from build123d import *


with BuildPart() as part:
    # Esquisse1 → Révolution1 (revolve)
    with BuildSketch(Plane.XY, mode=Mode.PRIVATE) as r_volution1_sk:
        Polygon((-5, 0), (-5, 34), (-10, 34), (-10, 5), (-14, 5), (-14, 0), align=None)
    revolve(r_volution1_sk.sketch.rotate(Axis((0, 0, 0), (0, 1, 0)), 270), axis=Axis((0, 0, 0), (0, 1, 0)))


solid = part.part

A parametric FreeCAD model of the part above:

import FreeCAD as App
import Part
import Sketcher

doc = App.newDocument("Part")
body = doc.addObject("PartDesign::Body", "Body")

# Sketch on XY plane
sketch1 = body.newObject("Sketcher::SketchObject", "Sketch")
sketch1.AttachmentSupport = (doc.getObject("XY_Plane"), [""])
sketch1.MapMode = "FlatFace"
sketch1.addGeometry([
    Part.LineSegment(App.Vector(-5, 0, 0), App.Vector(-5, 34, 0)),  # 0
    Part.LineSegment(App.Vector(-5, 34, 0), App.Vector(-10, 34, 0)),  # 1
    Part.LineSegment(App.Vector(-10, 34, 0), App.Vector(-10, 5, 0)),  # 2
    Part.LineSegment(App.Vector(-10, 5, 0), App.Vector(-14, 5, 0)),  # 3
    Part.LineSegment(App.Vector(-14, 5, 0), App.Vector(-14, 0, 0)),  # 4
    Part.LineSegment(App.Vector(-14, 0, 0), App.Vector(-5, 0, 0)),  # 5
], False)
sketch1.addConstraint([
    Sketcher.Constraint("Coincident", 0, 2, 1, 1),
    Sketcher.Constraint("Coincident", 1, 2, 2, 1),
    Sketcher.Constraint("Coincident", 2, 2, 3, 1),
    Sketcher.Constraint("Coincident", 3, 2, 4, 1),
    Sketcher.Constraint("Coincident", 4, 2, 5, 1),
    Sketcher.Constraint("Coincident", 5, 2, 0, 1),
    Sketcher.Constraint("Vertical", 0),
    Sketcher.Constraint("Horizontal", 1),
    Sketcher.Constraint("Vertical", 2),
    Sketcher.Constraint("Horizontal", 3),
    Sketcher.Constraint("Vertical", 4),
    Sketcher.Constraint("Horizontal", 5),
    Sketcher.Constraint("PointOnObject", 4, 2, -1),
    Sketcher.Constraint("Equal", 1, 4),
    Sketcher.Constraint("DistanceX", 1, 2, 1, 1, 5.0),
    Sketcher.Constraint("DistanceX", 3, 2, 3, 1, 4.0),
    Sketcher.Constraint("DistanceY", 0, 1, 0, 2, 34.0),
    Sketcher.Constraint("DistanceX", 0, 2, -1, 1, 5.0),
])
revolution = body.newObject("PartDesign::Revolution", "Revolution")
revolution.Profile = sketch1
revolution.ReferenceAxis = (sketch1, ["V_Axis"])
revolution.Angle = 360

doc.recompute()
